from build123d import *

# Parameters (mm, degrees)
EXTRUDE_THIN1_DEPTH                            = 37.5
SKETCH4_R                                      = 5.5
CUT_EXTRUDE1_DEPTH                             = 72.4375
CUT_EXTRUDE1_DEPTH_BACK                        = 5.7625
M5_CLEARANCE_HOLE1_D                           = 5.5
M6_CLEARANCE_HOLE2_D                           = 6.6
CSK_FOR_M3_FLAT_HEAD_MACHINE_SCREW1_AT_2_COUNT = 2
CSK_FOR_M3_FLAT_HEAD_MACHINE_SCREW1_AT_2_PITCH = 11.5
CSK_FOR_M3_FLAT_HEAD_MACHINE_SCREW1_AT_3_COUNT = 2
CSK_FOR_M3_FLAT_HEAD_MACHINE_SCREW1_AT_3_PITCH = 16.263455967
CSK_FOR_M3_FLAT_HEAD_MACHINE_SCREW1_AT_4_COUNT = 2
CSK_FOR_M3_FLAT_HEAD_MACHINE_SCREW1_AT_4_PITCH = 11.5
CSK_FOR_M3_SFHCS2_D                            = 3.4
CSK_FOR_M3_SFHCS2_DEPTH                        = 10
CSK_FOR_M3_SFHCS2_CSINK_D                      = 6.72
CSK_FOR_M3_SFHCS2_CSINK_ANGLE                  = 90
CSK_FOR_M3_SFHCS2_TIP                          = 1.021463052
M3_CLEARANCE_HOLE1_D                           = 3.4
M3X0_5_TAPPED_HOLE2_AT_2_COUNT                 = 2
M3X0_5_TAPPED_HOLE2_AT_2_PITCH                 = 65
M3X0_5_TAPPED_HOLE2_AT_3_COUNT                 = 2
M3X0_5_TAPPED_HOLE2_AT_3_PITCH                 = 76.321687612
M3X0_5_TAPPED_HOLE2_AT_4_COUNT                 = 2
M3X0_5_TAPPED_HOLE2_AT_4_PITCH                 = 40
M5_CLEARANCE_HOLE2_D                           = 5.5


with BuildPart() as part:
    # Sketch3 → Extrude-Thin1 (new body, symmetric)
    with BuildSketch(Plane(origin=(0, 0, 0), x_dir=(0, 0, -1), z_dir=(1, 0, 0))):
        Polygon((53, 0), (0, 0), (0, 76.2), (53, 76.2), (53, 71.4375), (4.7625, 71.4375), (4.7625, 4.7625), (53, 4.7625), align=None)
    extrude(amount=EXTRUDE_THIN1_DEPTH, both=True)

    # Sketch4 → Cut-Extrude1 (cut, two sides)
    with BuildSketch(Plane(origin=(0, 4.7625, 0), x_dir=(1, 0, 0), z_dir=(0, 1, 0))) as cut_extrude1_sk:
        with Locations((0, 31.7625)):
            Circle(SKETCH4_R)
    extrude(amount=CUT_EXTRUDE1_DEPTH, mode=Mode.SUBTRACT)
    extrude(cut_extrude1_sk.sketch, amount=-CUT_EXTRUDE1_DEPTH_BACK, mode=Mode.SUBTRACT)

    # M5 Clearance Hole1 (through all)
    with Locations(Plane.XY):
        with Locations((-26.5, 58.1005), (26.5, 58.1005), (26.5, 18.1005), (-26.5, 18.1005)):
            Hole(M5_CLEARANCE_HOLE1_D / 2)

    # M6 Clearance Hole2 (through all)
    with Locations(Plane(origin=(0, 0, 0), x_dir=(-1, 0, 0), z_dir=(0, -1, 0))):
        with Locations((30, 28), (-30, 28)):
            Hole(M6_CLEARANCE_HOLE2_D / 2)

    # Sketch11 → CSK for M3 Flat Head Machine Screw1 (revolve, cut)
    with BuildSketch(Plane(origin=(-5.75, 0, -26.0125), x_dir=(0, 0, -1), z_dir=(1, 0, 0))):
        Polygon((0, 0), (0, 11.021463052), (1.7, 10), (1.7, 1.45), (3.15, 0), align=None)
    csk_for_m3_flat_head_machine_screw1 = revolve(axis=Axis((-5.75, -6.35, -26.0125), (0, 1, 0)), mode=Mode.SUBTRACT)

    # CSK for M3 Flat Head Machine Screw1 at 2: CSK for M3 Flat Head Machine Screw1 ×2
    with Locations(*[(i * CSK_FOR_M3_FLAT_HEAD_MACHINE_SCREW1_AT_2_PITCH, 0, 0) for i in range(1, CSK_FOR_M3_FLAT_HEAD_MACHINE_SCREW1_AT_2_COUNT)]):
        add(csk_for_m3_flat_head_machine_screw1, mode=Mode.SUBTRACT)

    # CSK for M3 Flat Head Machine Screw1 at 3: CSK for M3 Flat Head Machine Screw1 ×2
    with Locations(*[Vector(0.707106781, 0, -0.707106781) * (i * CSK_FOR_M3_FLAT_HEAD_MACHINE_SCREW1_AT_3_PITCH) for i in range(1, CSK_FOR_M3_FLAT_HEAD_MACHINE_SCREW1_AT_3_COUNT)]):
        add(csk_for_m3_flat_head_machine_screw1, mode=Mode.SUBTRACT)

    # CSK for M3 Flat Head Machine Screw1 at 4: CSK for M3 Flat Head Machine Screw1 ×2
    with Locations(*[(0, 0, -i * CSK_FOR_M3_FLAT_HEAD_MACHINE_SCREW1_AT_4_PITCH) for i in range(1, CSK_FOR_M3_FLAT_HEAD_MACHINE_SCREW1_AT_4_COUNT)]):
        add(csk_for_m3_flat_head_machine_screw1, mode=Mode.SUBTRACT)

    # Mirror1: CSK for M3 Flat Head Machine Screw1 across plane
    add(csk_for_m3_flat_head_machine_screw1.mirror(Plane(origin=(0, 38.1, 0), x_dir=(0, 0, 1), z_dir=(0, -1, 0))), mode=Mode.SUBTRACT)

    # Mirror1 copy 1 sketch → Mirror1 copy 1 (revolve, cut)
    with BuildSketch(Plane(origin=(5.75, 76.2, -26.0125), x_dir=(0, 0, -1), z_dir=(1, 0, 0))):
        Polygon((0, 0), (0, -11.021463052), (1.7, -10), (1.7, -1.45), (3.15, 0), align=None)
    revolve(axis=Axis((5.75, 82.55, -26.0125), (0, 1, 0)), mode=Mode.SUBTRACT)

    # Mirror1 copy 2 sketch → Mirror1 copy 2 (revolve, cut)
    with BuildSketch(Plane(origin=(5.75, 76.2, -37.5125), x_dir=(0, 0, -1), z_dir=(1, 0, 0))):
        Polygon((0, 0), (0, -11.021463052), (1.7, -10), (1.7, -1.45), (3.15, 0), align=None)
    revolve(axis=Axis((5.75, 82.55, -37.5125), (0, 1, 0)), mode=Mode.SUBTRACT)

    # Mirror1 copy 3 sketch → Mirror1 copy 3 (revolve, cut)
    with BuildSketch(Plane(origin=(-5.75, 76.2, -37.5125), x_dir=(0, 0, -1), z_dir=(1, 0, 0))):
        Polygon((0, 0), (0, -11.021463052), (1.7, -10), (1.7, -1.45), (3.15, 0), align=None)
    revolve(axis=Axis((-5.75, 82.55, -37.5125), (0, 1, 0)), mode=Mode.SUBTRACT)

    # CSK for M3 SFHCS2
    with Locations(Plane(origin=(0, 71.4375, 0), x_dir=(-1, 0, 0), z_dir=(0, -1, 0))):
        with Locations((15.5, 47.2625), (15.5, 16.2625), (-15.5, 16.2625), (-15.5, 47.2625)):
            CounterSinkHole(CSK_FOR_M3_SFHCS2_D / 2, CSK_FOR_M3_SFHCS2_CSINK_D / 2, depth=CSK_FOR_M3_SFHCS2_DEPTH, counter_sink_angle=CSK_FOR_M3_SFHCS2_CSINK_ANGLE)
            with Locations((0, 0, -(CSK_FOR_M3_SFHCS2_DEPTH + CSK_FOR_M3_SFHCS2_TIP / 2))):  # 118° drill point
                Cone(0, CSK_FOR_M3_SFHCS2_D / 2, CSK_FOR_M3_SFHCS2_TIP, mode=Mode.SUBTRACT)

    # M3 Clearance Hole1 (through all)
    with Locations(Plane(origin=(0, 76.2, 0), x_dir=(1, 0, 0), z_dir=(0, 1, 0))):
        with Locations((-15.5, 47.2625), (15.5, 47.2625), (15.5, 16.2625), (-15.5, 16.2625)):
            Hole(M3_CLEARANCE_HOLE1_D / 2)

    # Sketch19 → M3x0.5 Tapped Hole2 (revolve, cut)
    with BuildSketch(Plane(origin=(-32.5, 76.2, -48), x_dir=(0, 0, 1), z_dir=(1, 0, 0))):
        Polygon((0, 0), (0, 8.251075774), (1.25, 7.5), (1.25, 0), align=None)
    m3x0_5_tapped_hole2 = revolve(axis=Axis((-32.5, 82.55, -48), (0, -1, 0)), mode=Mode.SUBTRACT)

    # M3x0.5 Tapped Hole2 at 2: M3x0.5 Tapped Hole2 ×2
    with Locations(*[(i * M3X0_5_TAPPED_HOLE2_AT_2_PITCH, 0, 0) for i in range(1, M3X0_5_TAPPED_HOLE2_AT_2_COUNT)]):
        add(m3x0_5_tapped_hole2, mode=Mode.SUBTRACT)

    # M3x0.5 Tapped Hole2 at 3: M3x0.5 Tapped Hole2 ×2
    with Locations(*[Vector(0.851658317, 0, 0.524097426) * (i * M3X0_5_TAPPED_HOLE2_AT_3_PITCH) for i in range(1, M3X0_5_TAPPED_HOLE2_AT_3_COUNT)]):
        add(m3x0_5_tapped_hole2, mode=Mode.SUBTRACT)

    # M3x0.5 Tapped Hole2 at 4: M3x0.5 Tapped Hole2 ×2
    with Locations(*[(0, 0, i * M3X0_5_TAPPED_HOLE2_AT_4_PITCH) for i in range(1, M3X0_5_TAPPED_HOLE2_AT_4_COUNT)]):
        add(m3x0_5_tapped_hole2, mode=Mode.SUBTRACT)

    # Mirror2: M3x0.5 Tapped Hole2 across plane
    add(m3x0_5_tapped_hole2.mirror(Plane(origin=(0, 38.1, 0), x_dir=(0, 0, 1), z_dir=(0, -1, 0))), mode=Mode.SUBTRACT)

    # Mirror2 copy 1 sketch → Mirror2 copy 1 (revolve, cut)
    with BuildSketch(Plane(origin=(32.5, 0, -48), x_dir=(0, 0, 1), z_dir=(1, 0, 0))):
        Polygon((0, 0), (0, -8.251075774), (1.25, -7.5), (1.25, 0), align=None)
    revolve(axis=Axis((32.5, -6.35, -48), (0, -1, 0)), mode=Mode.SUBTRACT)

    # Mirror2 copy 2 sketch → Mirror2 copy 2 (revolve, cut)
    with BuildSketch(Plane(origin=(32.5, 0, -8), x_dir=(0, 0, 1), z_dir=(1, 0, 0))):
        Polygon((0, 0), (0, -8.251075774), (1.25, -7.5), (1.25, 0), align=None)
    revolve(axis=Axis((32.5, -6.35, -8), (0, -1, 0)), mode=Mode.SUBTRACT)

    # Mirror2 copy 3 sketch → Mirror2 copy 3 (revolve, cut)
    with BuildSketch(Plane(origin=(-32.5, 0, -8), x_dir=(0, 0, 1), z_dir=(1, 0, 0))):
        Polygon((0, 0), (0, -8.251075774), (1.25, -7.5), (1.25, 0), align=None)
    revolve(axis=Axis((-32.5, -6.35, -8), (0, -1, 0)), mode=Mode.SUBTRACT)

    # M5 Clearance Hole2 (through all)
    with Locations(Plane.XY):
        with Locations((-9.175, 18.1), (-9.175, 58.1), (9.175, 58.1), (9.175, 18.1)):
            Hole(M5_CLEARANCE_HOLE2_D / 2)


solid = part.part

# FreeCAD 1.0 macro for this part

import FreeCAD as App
import Part
import Sketcher

V = App.Vector
Q = App.Units.Quantity

doc = App.newDocument("Part")
body = doc.addObject("PartDesign::Body", "Body")

# Sketch on YZ plane
sketch1 = body.newObject("Sketcher::SketchObject", "Sketch")
sketch1.AttachmentSupport = (doc.getObject("YZ_Plane"), [""])
sketch1.MapMode = "FlatFace"
sketch1.addGeometry(Part.LineSegment(V(0, 0, 0), V(0, -53, 0)), False)
sketch1.addGeometry(Part.LineSegment(V(0, -53, 0), V(4.7625, -53, 0)), False)
sketch1.addGeometry(Part.LineSegment(V(4.7625, -53, 0), V(4.7625, -4.7625, 0)), False)
sketch1.addGeometry(Part.LineSegment(V(4.7625, -4.7625, 0), V(71.4375, -4.7625, 0)), False)
sketch1.addGeometry(Part.LineSegment(V(71.4375, -4.7625, 0), V(71.4375, -53, 0)), False)
sketch1.addGeometry(Part.LineSegment(V(71.4375, -53, 0), V(76.2, -53, 0)), False)
sketch1.addGeometry(Part.LineSegment(V(76.2, -53, 0), V(76.2, 0, 0)), False)
sketch1.addGeometry(Part.LineSegment(V(76.2, 0, 0), V(0, 0, 0)), False)
sketch1.addConstraint(Sketcher.Constraint("Coincident", 0, 2, 1, 1))
sketch1.addConstraint(Sketcher.Constraint("Coincident", 1, 2, 2, 1))
sketch1.addConstraint(Sketcher.Constraint("Coincident", 2, 2, 3, 1))
sketch1.addConstraint(Sketcher.Constraint("Coincident", 3, 2, 4, 1))
sketch1.addConstraint(Sketcher.Constraint("Coincident", 4, 2, 5, 1))
sketch1.addConstraint(Sketcher.Constraint("Coincident", 5, 2, 6, 1))
sketch1.addConstraint(Sketcher.Constraint("Coincident", 6, 2, 7, 1))
sketch1.addConstraint(Sketcher.Constraint("Coincident", 7, 2, 0, 1))
sketch1.addConstraint(Sketcher.Constraint("Vertical", 0))
sketch1.addConstraint(Sketcher.Constraint("Horizontal", 1))
sketch1.addConstraint(Sketcher.Constraint("Vertical", 2))
sketch1.addConstraint(Sketcher.Constraint("Horizontal", 3))
sketch1.addConstraint(Sketcher.Constraint("Vertical", 4))
sketch1.addConstraint(Sketcher.Constraint("Horizontal", 5))
sketch1.addConstraint(Sketcher.Constraint("Vertical", 6))
sketch1.addConstraint(Sketcher.Constraint("Horizontal", 7))
sketch1.addConstraint(Sketcher.Constraint("Coincident", 7, 2, -1, 1))
sketch1.addConstraint(Sketcher.Constraint("Horizontal", 1, 2, 4, 2))
sketch1.addConstraint(Sketcher.Constraint("Equal", 1, 5))
sketch1.addConstraint(Sketcher.Constraint("DistanceY", 0, 2, 0, 1, Q("53 mm")))
sketch1.addConstraint(Sketcher.Constraint("DistanceX", 7, 2, 7, 1, Q("76.2 mm")))
sketch1.addConstraint(Sketcher.Constraint("DistanceX", 3, 1, 3, 2, Q("66.675 mm")))
sketch1.addConstraint(Sketcher.Constraint("DistanceY", 2, 1, 2, 2, Q("48.2375 mm")))
pad1 = body.newObject("PartDesign::Pad", "Pad")
pad1.Profile = sketch1
pad1.Length = 75
pad1.Midplane = True

# Sketch on XZ plane
sketch2 = body.newObject("Sketcher::SketchObject", "Sketch001")
sketch2.AttachmentSupport = (doc.getObject("XZ_Plane"), [""])
sketch2.MapMode = "FlatFace"
sketch2.AttachmentOffset = App.Placement(V(0, 0, -4.7625), App.Rotation())
sketch2.addGeometry(Part.Circle(V(0, -31.7625, 0), V(0, 0, 1), 5.5), False)
sketch2.addConstraint(Sketcher.Constraint("PointOnObject", 0, 3, -2))
sketch2.addConstraint(Sketcher.Constraint("Diameter", 0, Q("11 mm")))
sketch2.addConstraint(Sketcher.Constraint("DistanceY", 0, 3, -1, 1, Q("31.7625 mm")))
pocket1 = body.newObject("PartDesign::Pocket", "Pocket")
pocket1.Profile = sketch2
pocket1.Type = "ThroughAll"
pocket1.Midplane = True

# Sketch on XY plane
sketch3 = body.newObject("Sketcher::SketchObject", "Sketch002")
sketch3.AttachmentSupport = (doc.getObject("XY_Plane"), [""])
sketch3.MapMode = "FlatFace"
sketch3.addGeometry(Part.Circle(V(-26.5, 58.1005, 0), V(0, 0, 1), 2.75), False)
sketch3.addGeometry(Part.Circle(V(26.5, 58.1005, 0), V(0, 0, 1), 2.75), False)
sketch3.addGeometry(Part.Circle(V(26.5, 18.1005, 0), V(0, 0, 1), 2.75), False)
sketch3.addGeometry(Part.Circle(V(-26.5, 18.1005, 0), V(0, 0, 1), 2.75), False)
sketch3.addConstraint(Sketcher.Constraint("Equal", 0, 1))
sketch3.addConstraint(Sketcher.Constraint("Equal", 1, 2))
sketch3.addConstraint(Sketcher.Constraint("Equal", 2, 3))
sketch3.addConstraint(Sketcher.Constraint("Symmetric", 0, 3, 1, 3, -2))
sketch3.addConstraint(Sketcher.Constraint("Symmetric", 2, 3, 3, 3, -2))
sketch3.addConstraint(Sketcher.Constraint("Vertical", 1, 3, 2, 3))
sketch3.addConstraint(Sketcher.Constraint("Diameter", 0, Q("5.5 mm")))
sketch3.addConstraint(Sketcher.Constraint("DistanceX", 0, 3, 1, 3, Q("53 mm")))
sketch3.addConstraint(Sketcher.Constraint("DistanceY", 2, 3, 1, 3, Q("40 mm")))
sketch3.addConstraint(Sketcher.Constraint("DistanceY", -1, 1, 0, 3, Q("58.1005 mm")))
doc.recompute()
hole = body.newObject("PartDesign::Hole", "Hole")
hole.Profile = sketch3
hole.ThreadType = "None"
hole.Diameter = 5.5
hole.DepthType = "ThroughAll"

# Sketch on XZ plane
sketch4 = body.newObject("Sketcher::SketchObject", "Sketch003")
sketch4.AttachmentSupport = (doc.getObject("XZ_Plane"), [""])
sketch4.MapMode = "FlatFace"
sketch4.addGeometry(Part.Circle(V(-30, -28, 0), V(0, 0, 1), 3.3), False)
sketch4.addGeometry(Part.Circle(V(30, -28, 0), V(0, 0, 1), 3.3), False)
sketch4.addConstraint(Sketcher.Constraint("Equal", 0, 1))
sketch4.addConstraint(Sketcher.Constraint("Symmetric", 0, 3, 1, 3, -2))
sketch4.addConstraint(Sketcher.Constraint("Diameter", 0, Q("6.6 mm")))
sketch4.addConstraint(Sketcher.Constraint("DistanceX", 0, 3, -1, 1, Q("30 mm")))
sketch4.addConstraint(Sketcher.Constraint("DistanceY", 0, 3, -1, 1, Q("28 mm")))
doc.recompute()
hole2 = body.newObject("PartDesign::Hole", "Hole001")
hole2.Profile = sketch4
hole2.ThreadType = "None"
hole2.Diameter = 6.6
hole2.DepthType = "ThroughAll"

# Sketch on YZ plane
sketch5 = body.newObject("Sketcher::SketchObject", "Sketch004")
sketch5.AttachmentSupport = (doc.getObject("YZ_Plane"), [""])
sketch5.MapMode = "FlatFace"
sketch5.AttachmentOffset = App.Placement(V(0, 0, -5.75), App.Rotation())
sketch5.addGeometry(Part.LineSegment(V(11.021463, -26.0125, 0), V(0, -26.0125, 0)), False)
sketch5.addGeometry(Part.LineSegment(V(0, -26.0125, 0), V(0, -29.1625, 0)), False)
sketch5.addGeometry(Part.LineSegment(V(0, -29.1625, 0), V(1.45, -27.7125, 0)), False)
sketch5.addGeometry(Part.LineSegment(V(1.45, -27.7125, 0), V(10, -27.7125, 0)), False)
sketch5.addGeometry(Part.LineSegment(V(10, -27.7125, 0), V(11.021463, -26.0125, 0)), False)
sketch5.addGeometry(Part.LineSegment(V(0, -26.0125, 0), V(11.021463, -26.0125, 0)), True)  # axis
sketch5.addConstraint(Sketcher.Constraint("Coincident", 0, 2, 1, 1))
sketch5.addConstraint(Sketcher.Constraint("Coincident", 1, 2, 2, 1))
sketch5.addConstraint(Sketcher.Constraint("Coincident", 2, 2, 3, 1))
sketch5.addConstraint(Sketcher.Constraint("Coincident", 3, 2, 4, 1))
sketch5.addConstraint(Sketcher.Constraint("Coincident", 4, 2, 0, 1))
sketch5.addConstraint(Sketcher.Constraint("Horizontal", 0))
sketch5.addConstraint(Sketcher.Constraint("Vertical", 1))
sketch5.addConstraint(Sketcher.Constraint("Horizontal", 3))
sketch5.addConstraint(Sketcher.Constraint("Horizontal", 5))
sketch5.addConstraint(Sketcher.Constraint("Coincident", 5, 1, 0, 2))
sketch5.addConstraint(Sketcher.Constraint("PointOnObject", 0, 2, -2))
sketch5.addConstraint(Sketcher.Constraint("Equal", 0, 5))
sketch5.addConstraint(Sketcher.Constraint("Angle", 2, Q("45 deg")))
sketch5.addConstraint(Sketcher.Constraint("Angle", 4, Q("59 deg")))
sketch5.addConstraint(Sketcher.Constraint("DistanceX", -1, 1, 3, 2, Q("10 mm")))
sketch5.addConstraint(Sketcher.Constraint("DistanceX", 3, 1, 3, 2, Q("8.55 mm")))
sketch5.addConstraint(Sketcher.Constraint("DistanceY", 1, 2, 1, 1, Q("3.15 mm")))
sketch5.addConstraint(Sketcher.Constraint("DistanceY", 0, 2, -1, 1, Q("26.0125 mm")))
groove = body.newObject("PartDesign::Groove", "Groove")
groove.Profile = sketch5
groove.ReferenceAxis = (sketch5, ["Axis0"])
groove.Angle = 360
doc.recompute()

linearpattern = body.newObject("PartDesign::LinearPattern", "LinearPattern")
linearpattern.Originals = [groove]
linearpattern.Direction = (doc.getObject("X_Axis"), [""])
linearpattern.Mode = "offset"
linearpattern.Offset = 11.5
linearpattern.Occurrences = 2
body.Tip = linearpattern
doc.recompute()

datumline = body.newObject("PartDesign::Line", "DatumLine")
datumline.Placement = App.Placement(V(0, 0, 0), App.Rotation(V(0, 0, 1), V(0.707106781, 0, -0.707106781)))
linearpattern2 = body.newObject("PartDesign::LinearPattern", "LinearPattern001")
linearpattern2.Originals = [groove]
linearpattern2.Direction = (datumline, [""])
linearpattern2.Mode = "offset"
linearpattern2.Offset = 16.263456
linearpattern2.Occurrences = 2
body.Tip = linearpattern2
doc.recompute()

linearpattern3 = body.newObject("PartDesign::LinearPattern", "LinearPattern002")
linearpattern3.Originals = [groove]
linearpattern3.Direction = (doc.getObject("Z_Axis"), [""])
linearpattern3.Mode = "offset"
linearpattern3.Offset = 11.5
linearpattern3.Occurrences = 2
linearpattern3.Reversed = True
body.Tip = linearpattern3
doc.recompute()

datumplane = body.newObject("PartDesign::Plane", "DatumPlane")
datumplane.AttachmentSupport = (doc.getObject("XZ_Plane"), [""])
datumplane.MapMode = "FlatFace"
datumplane.AttachmentOffset = App.Placement(V(0, 0, -38.1), App.Rotation())
mirrored = body.newObject("PartDesign::Mirrored", "Mirrored")
mirrored.Originals = [groove]
mirrored.MirrorPlane = (datumplane, [""])
body.Tip = mirrored

# Sketch on YZ plane
sketch6 = body.newObject("Sketcher::SketchObject", "Sketch005")
sketch6.AttachmentSupport = (doc.getObject("YZ_Plane"), [""])
sketch6.MapMode = "FlatFace"
sketch6.AttachmentOffset = App.Placement(V(0, 0, 5.75), App.Rotation())
sketch6.addGeometry(Part.LineSegment(V(76.2, -26.0125, 0), V(65.178537, -26.0125, 0)), False)
sketch6.addGeometry(Part.LineSegment(V(65.178537, -26.0125, 0), V(66.2, -27.7125, 0)), False)
sketch6.addGeometry(Part.LineSegment(V(66.2, -27.7125, 0), V(74.75, -27.7125, 0)), False)
sketch6.addGeometry(Part.LineSegment(V(74.75, -27.7125, 0), V(76.2, -29.1625, 0)), False)
sketch6.addGeometry(Part.LineSegment(V(76.2, -29.1625, 0), V(76.2, -26.0125, 0)), False)
sketch6.addGeometry(Part.LineSegment(V(65.178537, -26.0125, 0), V(76.2, -26.0125, 0)), True)  # axis
sketch6.addConstraint(Sketcher.Constraint("Coincident", 0, 2, 1, 1))
sketch6.addConstraint(Sketcher.Constraint("Coincident", 1, 2, 2, 1))
sketch6.addConstraint(Sketcher.Constraint("Coincident", 2, 2, 3, 1))
sketch6.addConstraint(Sketcher.Constraint("Coincident", 3, 2, 4, 1))
sketch6.addConstraint(Sketcher.Constraint("Coincident", 4, 2, 0, 1))
sketch6.addConstraint(Sketcher.Constraint("Horizontal", 0))
sketch6.addConstraint(Sketcher.Constraint("Horizontal", 2))
sketch6.addConstraint(Sketcher.Constraint("Vertical", 4))
sketch6.addConstraint(Sketcher.Constraint("Horizontal", 5))
sketch6.addConstraint(Sketcher.Constraint("Coincident", 5, 1, 0, 2))
sketch6.addConstraint(Sketcher.Constraint("Vertical", 3, 2, 5, 2))
sketch6.addConstraint(Sketcher.Constraint("Angle", 1, Q("-59 deg")))
sketch6.addConstraint(Sketcher.Constraint("Angle", 3, Q("-45 deg")))
sketch6.addConstraint(Sketcher.Constraint("DistanceX", 1, 2, 3, 2, Q("10 mm")))
sketch6.addConstraint(Sketcher.Constraint("DistanceX", 2, 1, 2, 2, Q("8.55 mm")))
sketch6.addConstraint(Sketcher.Constraint("DistanceY", 4, 1, 4, 2, Q("3.15 mm")))
sketch6.addConstraint(Sketcher.Constraint("DistanceX", -1, 1, 1, 2, Q("66.2 mm")))
sketch6.addConstraint(Sketcher.Constraint("DistanceY", 0, 2, -1, 1, Q("26.0125 mm")))
groove2 = body.newObject("PartDesign::Groove", "Groove001")
groove2.Profile = sketch6
groove2.ReferenceAxis = (sketch6, ["Axis0"])
groove2.Angle = 360

# Sketch on YZ plane
sketch7 = body.newObject("Sketcher::SketchObject", "Sketch006")
sketch7.AttachmentSupport = (doc.getObject("YZ_Plane"), [""])
sketch7.MapMode = "FlatFace"
sketch7.AttachmentOffset = App.Placement(V(0, 0, 5.75), App.Rotation())
sketch7.addGeometry(Part.LineSegment(V(76.2, -37.5125, 0), V(65.178537, -37.5125, 0)), False)
sketch7.addGeometry(Part.LineSegment(V(65.178537, -37.5125, 0), V(66.2, -39.2125, 0)), False)
sketch7.addGeometry(Part.LineSegment(V(66.2, -39.2125, 0), V(74.75, -39.2125, 0)), False)
sketch7.addGeometry(Part.LineSegment(V(74.75, -39.2125, 0), V(76.2, -40.6625, 0)), False)
sketch7.addGeometry(Part.LineSegment(V(76.2, -40.6625, 0), V(76.2, -37.5125, 0)), False)
sketch7.addGeometry(Part.LineSegment(V(65.178537, -37.5125, 0), V(76.2, -37.5125, 0)), True)  # axis
sketch7.addConstraint(Sketcher.Constraint("Coincident", 0, 2, 1, 1))
sketch7.addConstraint(Sketcher.Constraint("Coincident", 1, 2, 2, 1))
sketch7.addConstraint(Sketcher.Constraint("Coincident", 2, 2, 3, 1))
sketch7.addConstraint(Sketcher.Constraint("Coincident", 3, 2, 4, 1))
sketch7.addConstraint(Sketcher.Constraint("Coincident", 4, 2, 0, 1))
sketch7.addConstraint(Sketcher.Constraint("Horizontal", 0))
sketch7.addConstraint(Sketcher.Constraint("Horizontal", 2))
sketch7.addConstraint(Sketcher.Constraint("Vertical", 4))
sketch7.addConstraint(Sketcher.Constraint("Horizontal", 5))
sketch7.addConstraint(Sketcher.Constraint("Coincident", 5, 1, 0, 2))
sketch7.addConstraint(Sketcher.Constraint("Vertical", 3, 2, 5, 2))
sketch7.addConstraint(Sketcher.Constraint("Angle", 1, Q("-59 deg")))
sketch7.addConstraint(Sketcher.Constraint("Angle", 3, Q("-45 deg")))
sketch7.addConstraint(Sketcher.Constraint("DistanceX", 1, 2, 3, 2, Q("10 mm")))
sketch7.addConstraint(Sketcher.Constraint("DistanceX", 2, 1, 2, 2, Q("8.55 mm")))
sketch7.addConstraint(Sketcher.Constraint("DistanceY", 4, 1, 4, 2, Q("3.15 mm")))
sketch7.addConstraint(Sketcher.Constraint("DistanceX", -1, 1, 1, 2, Q("66.2 mm")))
sketch7.addConstraint(Sketcher.Constraint("DistanceY", 0, 2, -1, 1, Q("37.5125 mm")))
groove3 = body.newObject("PartDesign::Groove", "Groove002")
groove3.Profile = sketch7
groove3.ReferenceAxis = (sketch7, ["Axis0"])
groove3.Angle = 360

# Sketch on YZ plane
sketch8 = body.newObject("Sketcher::SketchObject", "Sketch007")
sketch8.AttachmentSupport = (doc.getObject("YZ_Plane"), [""])
sketch8.MapMode = "FlatFace"
sketch8.AttachmentOffset = App.Placement(V(0, 0, -5.75), App.Rotation())
sketch8.addGeometry(Part.LineSegment(V(76.2, -37.5125, 0), V(65.178537, -37.5125, 0)), False)
sketch8.addGeometry(Part.LineSegment(V(65.178537, -37.5125, 0), V(66.2, -39.2125, 0)), False)
sketch8.addGeometry(Part.LineSegment(V(66.2, -39.2125, 0), V(74.75, -39.2125, 0)), False)
sketch8.addGeometry(Part.LineSegment(V(74.75, -39.2125, 0), V(76.2, -40.6625, 0)), False)
sketch8.addGeometry(Part.LineSegment(V(76.2, -40.6625, 0), V(76.2, -37.5125, 0)), False)
sketch8.addGeometry(Part.LineSegment(V(65.178537, -37.5125, 0), V(76.2, -37.5125, 0)), True)  # axis
sketch8.addConstraint(Sketcher.Constraint("Coincident", 0, 2, 1, 1))
sketch8.addConstraint(Sketcher.Constraint("Coincident", 1, 2, 2, 1))
sketch8.addConstraint(Sketcher.Constraint("Coincident", 2, 2, 3, 1))
sketch8.addConstraint(Sketcher.Constraint("Coincident", 3, 2, 4, 1))
sketch8.addConstraint(Sketcher.Constraint("Coincident", 4, 2, 0, 1))
sketch8.addConstraint(Sketcher.Constraint("Horizontal", 0))
sketch8.addConstraint(Sketcher.Constraint("Horizontal", 2))
sketch8.addConstraint(Sketcher.Constraint("Vertical", 4))
sketch8.addConstraint(Sketcher.Constraint("Horizontal", 5))
sketch8.addConstraint(Sketcher.Constraint("Coincident", 5, 1, 0, 2))
sketch8.addConstraint(Sketcher.Constraint("Vertical", 3, 2, 5, 2))
sketch8.addConstraint(Sketcher.Constraint("Angle", 1, Q("-59 deg")))
sketch8.addConstraint(Sketcher.Constraint("Angle", 3, Q("-45 deg")))
sketch8.addConstraint(Sketcher.Constraint("DistanceX", 1, 2, 3, 2, Q("10 mm")))
sketch8.addConstraint(Sketcher.Constraint("DistanceX", 2, 1, 2, 2, Q("8.55 mm")))
sketch8.addConstraint(Sketcher.Constraint("DistanceY", 4, 1, 4, 2, Q("3.15 mm")))
sketch8.addConstraint(Sketcher.Constraint("DistanceX", -1, 1, 1, 2, Q("66.2 mm")))
sketch8.addConstraint(Sketcher.Constraint("DistanceY", 0, 2, -1, 1, Q("37.5125 mm")))
groove4 = body.newObject("PartDesign::Groove", "Groove003")
groove4.Profile = sketch8
groove4.ReferenceAxis = (sketch8, ["Axis0"])
groove4.Angle = 360

# Sketch on XZ plane
sketch9 = body.newObject("Sketcher::SketchObject", "Sketch008")
sketch9.AttachmentSupport = (doc.getObject("XZ_Plane"), [""])
sketch9.MapMode = "FlatFace"
sketch9.AttachmentOffset = App.Placement(V(0, 0, -71.4375), App.Rotation())
sketch9.addGeometry(Part.Circle(V(-15.5, -47.2625, 0), V(0, 0, 1), 1.7), False)
sketch9.addGeometry(Part.Circle(V(-15.5, -16.2625, 0), V(0, 0, 1), 1.7), False)
sketch9.addGeometry(Part.Circle(V(15.5, -16.2625, 0), V(0, 0, 1), 1.7), False)
sketch9.addGeometry(Part.Circle(V(15.5, -47.2625, 0), V(0, 0, 1), 1.7), False)
sketch9.addConstraint(Sketcher.Constraint("Equal", 0, 1))
sketch9.addConstraint(Sketcher.Constraint("Equal", 1, 2))
sketch9.addConstraint(Sketcher.Constraint("Equal", 2, 3))
sketch9.addConstraint(Sketcher.Constraint("Symmetric", 1, 3, 2, 3, -2))
sketch9.addConstraint(Sketcher.Constraint("Symmetric", 0, 3, 3, 3, -2))
sketch9.addConstraint(Sketcher.Constraint("Vertical", 0, 3, 1, 3))
sketch9.addConstraint(Sketcher.Constraint("Diameter", 0, Q("3.4 mm")))
sketch9.addConstraint(Sketcher.Constraint("DistanceY", 0, 3, 1, 3, Q("31 mm")))
sketch9.addConstraint(Sketcher.Constraint("DistanceX", 1, 3, 2, 3, Q("31 mm")))
sketch9.addConstraint(Sketcher.Constraint("DistanceY", 0, 3, -1, 1, Q("47.2625 mm")))
doc.recompute()
hole3 = body.newObject("PartDesign::Hole", "Hole002")
hole3.Profile = sketch9
hole3.ThreadType = "None"
hole3.Diameter = 3.4
hole3.DepthType = "Dimension"
hole3.Depth = 10
hole3.DrillPoint = "Angled"
hole3.DrillPointAngle = 118
hole3.HoleCutType = "Countersink"
hole3.HoleCutDiameter = 6.72
hole3.HoleCutCountersinkAngle = 90

# Sketch on XZ plane
sketch10 = body.newObject("Sketcher::SketchObject", "Sketch009")
sketch10.AttachmentSupport = (doc.getObject("XZ_Plane"), [""])
sketch10.MapMode = "FlatFace"
sketch10.AttachmentOffset = App.Placement(V(0, 0, -76.2), App.Rotation())
sketch10.addGeometry(Part.Circle(V(-15.5, -47.2625, 0), V(0, 0, 1), 1.7), False)
sketch10.addGeometry(Part.Circle(V(15.5, -47.2625, 0), V(0, 0, 1), 1.7), False)
sketch10.addGeometry(Part.Circle(V(15.5, -16.2625, 0), V(0, 0, 1), 1.7), False)
sketch10.addGeometry(Part.Circle(V(-15.5, -16.2625, 0), V(0, 0, 1), 1.7), False)
sketch10.addConstraint(Sketcher.Constraint("Equal", 0, 1))
sketch10.addConstraint(Sketcher.Constraint("Equal", 1, 2))
sketch10.addConstraint(Sketcher.Constraint("Equal", 2, 3))
sketch10.addConstraint(Sketcher.Constraint("Symmetric", 0, 3, 1, 3, -2))
sketch10.addConstraint(Sketcher.Constraint("Symmetric", 2, 3, 3, 3, -2))
sketch10.addConstraint(Sketcher.Constraint("Vertical", 1, 3, 2, 3))
sketch10.addConstraint(Sketcher.Constraint("Diameter", 0, Q("3.4 mm")))
sketch10.addConstraint(Sketcher.Constraint("DistanceX", 0, 3, 1, 3, Q("31 mm")))
sketch10.addConstraint(Sketcher.Constraint("DistanceY", 1, 3, 2, 3, Q("31 mm")))
sketch10.addConstraint(Sketcher.Constraint("DistanceY", 0, 3, -1, 1, Q("47.2625 mm")))
doc.recompute()
hole4 = body.newObject("PartDesign::Hole", "Hole003")
hole4.Profile = sketch10
hole4.ThreadType = "None"
hole4.Diameter = 3.4
hole4.DepthType = "ThroughAll"
hole4.Reversed = True

# Sketch on YZ plane
sketch11 = body.newObject("Sketcher::SketchObject", "Sketch010")
sketch11.AttachmentSupport = (doc.getObject("YZ_Plane"), [""])
sketch11.MapMode = "FlatFace"
sketch11.AttachmentOffset = App.Placement(V(0, 0, -32.5), App.Rotation())
sketch11.addGeometry(Part.LineSegment(V(67.948924, -48, 0), V(76.2, -48, 0)), False)
sketch11.addGeometry(Part.LineSegment(V(76.2, -48, 0), V(76.2, -46.75, 0)), False)
sketch11.addGeometry(Part.LineSegment(V(76.2, -46.75, 0), V(68.7, -46.75, 0)), False)
sketch11.addGeometry(Part.LineSegment(V(68.7, -46.75, 0), V(67.948924, -48, 0)), False)
sketch11.addGeometry(Part.LineSegment(V(76.2, -48, 0), V(67.948924, -48, 0)), True)  # axis
sketch11.addConstraint(Sketcher.Constraint("Coincident", 0, 2, 1, 1))
sketch11.addConstraint(Sketcher.Constraint("Coincident", 1, 2, 2, 1))
sketch11.addConstraint(Sketcher.Constraint("Coincident", 2, 2, 3, 1))
sketch11.addConstraint(Sketcher.Constraint("Coincident", 3, 2, 0, 1))
sketch11.addConstraint(Sketcher.Constraint("Horizontal", 0))
sketch11.addConstraint(Sketcher.Constraint("Vertical", 1))
sketch11.addConstraint(Sketcher.Constraint("Horizontal", 2))
sketch11.addConstraint(Sketcher.Constraint("Horizontal", 4))
sketch11.addConstraint(Sketcher.Constraint("Coincident", 4, 1, 0, 2))
sketch11.addConstraint(Sketcher.Constraint("Equal", 0, 4))
sketch11.addConstraint(Sketcher.Constraint("Angle", 3, Q("-121 deg")))
sketch11.addConstraint(Sketcher.Constraint("DistanceX", 2, 2, 2, 1, Q("7.5 mm")))
sketch11.addConstraint(Sketcher.Constraint("DistanceY", 0, 2, -1, 1, Q("48 mm")))
sketch11.addConstraint(Sketcher.Constraint("DistanceY", 1, 1, 1, 2, Q("1.25 mm")))
sketch11.addConstraint(Sketcher.Constraint("DistanceX", -1, 1, 0, 2, Q("76.2 mm")))
groove5 = body.newObject("PartDesign::Groove", "Groove004")
groove5.Profile = sketch11
groove5.ReferenceAxis = (sketch11, ["Axis0"])
groove5.Angle = 360
doc.recompute()

linearpattern4 = body.newObject("PartDesign::LinearPattern", "LinearPattern003")
linearpattern4.Originals = [groove5]
linearpattern4.Direction = (doc.getObject("X_Axis"), [""])
linearpattern4.Mode = "offset"
linearpattern4.Offset = 65
linearpattern4.Occurrences = 2
body.Tip = linearpattern4
doc.recompute()

datumline2 = body.newObject("PartDesign::Line", "DatumLine001")
datumline2.Placement = App.Placement(V(0, 0, 0), App.Rotation(V(0, 0, 1), V(0.851658317, 0, 0.524097426)))
linearpattern5 = body.newObject("PartDesign::LinearPattern", "LinearPattern004")
linearpattern5.Originals = [groove5]
linearpattern5.Direction = (datumline2, [""])
linearpattern5.Mode = "offset"
linearpattern5.Offset = 76.321688
linearpattern5.Occurrences = 2
body.Tip = linearpattern5
doc.recompute()

linearpattern6 = body.newObject("PartDesign::LinearPattern", "LinearPattern005")
linearpattern6.Originals = [groove5]
linearpattern6.Direction = (doc.getObject("Z_Axis"), [""])
linearpattern6.Mode = "offset"
linearpattern6.Offset = 40
linearpattern6.Occurrences = 2
body.Tip = linearpattern6
doc.recompute()

datumplane2 = body.newObject("PartDesign::Plane", "DatumPlane001")
datumplane2.AttachmentSupport = (doc.getObject("XZ_Plane"), [""])
datumplane2.MapMode = "FlatFace"
datumplane2.AttachmentOffset = App.Placement(V(0, 0, -38.1), App.Rotation())
mirrored2 = body.newObject("PartDesign::Mirrored", "Mirrored001")
mirrored2.Originals = [groove5]
mirrored2.MirrorPlane = (datumplane2, [""])
body.Tip = mirrored2

# Sketch on YZ plane
sketch12 = body.newObject("Sketcher::SketchObject", "Sketch011")
sketch12.AttachmentSupport = (doc.getObject("YZ_Plane"), [""])
sketch12.MapMode = "FlatFace"
sketch12.AttachmentOffset = App.Placement(V(0, 0, 32.5), App.Rotation())
sketch12.addGeometry(Part.LineSegment(V(0, -48, 0), V(8.251076, -48, 0)), False)
sketch12.addGeometry(Part.LineSegment(V(8.251076, -48, 0), V(7.5, -46.75, 0)), False)
sketch12.addGeometry(Part.LineSegment(V(7.5, -46.75, 0), V(0, -46.75, 0)), False)
sketch12.addGeometry(Part.LineSegment(V(0, -46.75, 0), V(0, -48, 0)), False)
sketch12.addGeometry(Part.LineSegment(V(8.251076, -48, 0), V(0, -48, 0)), True)  # axis
sketch12.addConstraint(Sketcher.Constraint("Coincident", 0, 2, 1, 1))
sketch12.addConstraint(Sketcher.Constraint("Coincident", 1, 2, 2, 1))
sketch12.addConstraint(Sketcher.Constraint("Coincident", 2, 2, 3, 1))
sketch12.addConstraint(Sketcher.Constraint("Coincident", 3, 2, 0, 1))
sketch12.addConstraint(Sketcher.Constraint("Horizontal", 0))
sketch12.addConstraint(Sketcher.Constraint("Horizontal", 2))
sketch12.addConstraint(Sketcher.Constraint("Vertical", 3))
sketch12.addConstraint(Sketcher.Constraint("Horizontal", 4))
sketch12.addConstraint(Sketcher.Constraint("Coincident", 4, 1, 0, 2))
sketch12.addConstraint(Sketcher.Constraint("PointOnObject", 2, 2, -2))
sketch12.addConstraint(Sketcher.Constraint("PointOnObject", 4, 2, -2))
sketch12.addConstraint(Sketcher.Constraint("Angle", 1, Q("121 deg")))
sketch12.addConstraint(Sketcher.Constraint("DistanceX", 2, 2, 2, 1, Q("7.5 mm")))
sketch12.addConstraint(Sketcher.Constraint("DistanceY", 0, 2, -1, 1, Q("48 mm")))
sketch12.addConstraint(Sketcher.Constraint("DistanceY", 3, 2, 3, 1, Q("1.25 mm")))
groove6 = body.newObject("PartDesign::Groove", "Groove005")
groove6.Profile = sketch12
groove6.ReferenceAxis = (sketch12, ["Axis0"])
groove6.Angle = 360

# Sketch on YZ plane
sketch13 = body.newObject("Sketcher::SketchObject", "Sketch012")
sketch13.AttachmentSupport = (doc.getObject("YZ_Plane"), [""])
sketch13.MapMode = "FlatFace"
sketch13.AttachmentOffset = App.Placement(V(0, 0, 32.5), App.Rotation())
sketch13.addGeometry(Part.LineSegment(V(0, -8, 0), V(8.251076, -8, 0)), False)
sketch13.addGeometry(Part.LineSegment(V(8.251076, -8, 0), V(7.5, -6.75, 0)), False)
sketch13.addGeometry(Part.LineSegment(V(7.5, -6.75, 0), V(0, -6.75, 0)), False)
sketch13.addGeometry(Part.LineSegment(V(0, -6.75, 0), V(0, -8, 0)), False)
sketch13.addGeometry(Part.LineSegment(V(8.251076, -8, 0), V(0, -8, 0)), True)  # axis
sketch13.addConstraint(Sketcher.Constraint("Coincident", 0, 2, 1, 1))
sketch13.addConstraint(Sketcher.Constraint("Coincident", 1, 2, 2, 1))
sketch13.addConstraint(Sketcher.Constraint("Coincident", 2, 2, 3, 1))
sketch13.addConstraint(Sketcher.Constraint("Coincident", 3, 2, 0, 1))
sketch13.addConstraint(Sketcher.Constraint("Horizontal", 0))
sketch13.addConstraint(Sketcher.Constraint("Horizontal", 2))
sketch13.addConstraint(Sketcher.Constraint("Vertical", 3))
sketch13.addConstraint(Sketcher.Constraint("Horizontal", 4))
sketch13.addConstraint(Sketcher.Constraint("Coincident", 4, 1, 0, 2))
sketch13.addConstraint(Sketcher.Constraint("PointOnObject", 2, 2, -2))
sketch13.addConstraint(Sketcher.Constraint("PointOnObject", 4, 2, -2))
sketch13.addConstraint(Sketcher.Constraint("Angle", 1, Q("121 deg")))
sketch13.addConstraint(Sketcher.Constraint("DistanceX", 2, 2, 2, 1, Q("7.5 mm")))
sketch13.addConstraint(Sketcher.Constraint("DistanceY", 0, 2, -1, 1, Q("8 mm")))
sketch13.addConstraint(Sketcher.Constraint("DistanceY", 3, 2, 3, 1, Q("1.25 mm")))
groove7 = body.newObject("PartDesign::Groove", "Groove006")
groove7.Profile = sketch13
groove7.ReferenceAxis = (sketch13, ["Axis0"])
groove7.Angle = 360

# Sketch on YZ plane
sketch14 = body.newObject("Sketcher::SketchObject", "Sketch013")
sketch14.AttachmentSupport = (doc.getObject("YZ_Plane"), [""])
sketch14.MapMode = "FlatFace"
sketch14.AttachmentOffset = App.Placement(V(0, 0, -32.5), App.Rotation())
sketch14.addGeometry(Part.LineSegment(V(0, -8, 0), V(8.251076, -8, 0)), False)
sketch14.addGeometry(Part.LineSegment(V(8.251076, -8, 0), V(7.5, -6.75, 0)), False)
sketch14.addGeometry(Part.LineSegment(V(7.5, -6.75, 0), V(0, -6.75, 0)), False)
sketch14.addGeometry(Part.LineSegment(V(0, -6.75, 0), V(0, -8, 0)), False)
sketch14.addGeometry(Part.LineSegment(V(8.251076, -8, 0), V(0, -8, 0)), True)  # axis
sketch14.addConstraint(Sketcher.Constraint("Coincident", 0, 2, 1, 1))
sketch14.addConstraint(Sketcher.Constraint("Coincident", 1, 2, 2, 1))
sketch14.addConstraint(Sketcher.Constraint("Coincident", 2, 2, 3, 1))
sketch14.addConstraint(Sketcher.Constraint("Coincident", 3, 2, 0, 1))
sketch14.addConstraint(Sketcher.Constraint("Horizontal", 0))
sketch14.addConstraint(Sketcher.Constraint("Horizontal", 2))
sketch14.addConstraint(Sketcher.Constraint("Vertical", 3))
sketch14.addConstraint(Sketcher.Constraint("Horizontal", 4))
sketch14.addConstraint(Sketcher.Constraint("Coincident", 4, 1, 0, 2))
sketch14.addConstraint(Sketcher.Constraint("PointOnObject", 2, 2, -2))
sketch14.addConstraint(Sketcher.Constraint("PointOnObject", 4, 2, -2))
sketch14.addConstraint(Sketcher.Constraint("Angle", 1, Q("121 deg")))
sketch14.addConstraint(Sketcher.Constraint("DistanceX", 2, 2, 2, 1, Q("7.5 mm")))
sketch14.addConstraint(Sketcher.Constraint("DistanceY", 0, 2, -1, 1, Q("8 mm")))
sketch14.addConstraint(Sketcher.Constraint("DistanceY", 3, 2, 3, 1, Q("1.25 mm")))
groove8 = body.newObject("PartDesign::Groove", "Groove007")
groove8.Profile = sketch14
groove8.ReferenceAxis = (sketch14, ["Axis0"])
groove8.Angle = 360

# Sketch on XY plane
sketch15 = body.newObject("Sketcher::SketchObject", "Sketch014")
sketch15.AttachmentSupport = (doc.getObject("XY_Plane"), [""])
sketch15.MapMode = "FlatFace"
sketch15.addGeometry(Part.Circle(V(-9.175, 18.1, 0), V(0, 0, 1), 2.75), False)
sketch15.addGeometry(Part.Circle(V(-9.175, 58.1, 0), V(0, 0, 1), 2.75), False)
sketch15.addGeometry(Part.Circle(V(9.175, 58.1, 0), V(0, 0, 1), 2.75), False)
sketch15.addGeometry(Part.Circle(V(9.175, 18.1, 0), V(0, 0, 1), 2.75), False)
sketch15.addConstraint(Sketcher.Constraint("Equal", 0, 1))
sketch15.addConstraint(Sketcher.Constraint("Equal", 1, 2))
sketch15.addConstraint(Sketcher.Constraint("Equal", 2, 3))
sketch15.addConstraint(Sketcher.Constraint("Symmetric", 1, 3, 2, 3, -2))
sketch15.addConstraint(Sketcher.Constraint("Symmetric", 0, 3, 3, 3, -2))
sketch15.addConstraint(Sketcher.Constraint("Vertical", 0, 3, 1, 3))
sketch15.addConstraint(Sketcher.Constraint("Diameter", 0, Q("5.5 mm")))
sketch15.addConstraint(Sketcher.Constraint("DistanceY", 0, 3, 1, 3, Q("40 mm")))
sketch15.addConstraint(Sketcher.Constraint("DistanceY", -1, 1, 0, 3, Q("18.1 mm")))
sketch15.addConstraint(Sketcher.Constraint("DistanceX", 1, 3, 2, 3, Q("18.35 mm")))
doc.recompute()
hole5 = body.newObject("PartDesign::Hole", "Hole004")
hole5.Profile = sketch15
hole5.ThreadType = "None"
hole5.Diameter = 5.5
hole5.DepthType = "ThroughAll"

doc.recompute()
